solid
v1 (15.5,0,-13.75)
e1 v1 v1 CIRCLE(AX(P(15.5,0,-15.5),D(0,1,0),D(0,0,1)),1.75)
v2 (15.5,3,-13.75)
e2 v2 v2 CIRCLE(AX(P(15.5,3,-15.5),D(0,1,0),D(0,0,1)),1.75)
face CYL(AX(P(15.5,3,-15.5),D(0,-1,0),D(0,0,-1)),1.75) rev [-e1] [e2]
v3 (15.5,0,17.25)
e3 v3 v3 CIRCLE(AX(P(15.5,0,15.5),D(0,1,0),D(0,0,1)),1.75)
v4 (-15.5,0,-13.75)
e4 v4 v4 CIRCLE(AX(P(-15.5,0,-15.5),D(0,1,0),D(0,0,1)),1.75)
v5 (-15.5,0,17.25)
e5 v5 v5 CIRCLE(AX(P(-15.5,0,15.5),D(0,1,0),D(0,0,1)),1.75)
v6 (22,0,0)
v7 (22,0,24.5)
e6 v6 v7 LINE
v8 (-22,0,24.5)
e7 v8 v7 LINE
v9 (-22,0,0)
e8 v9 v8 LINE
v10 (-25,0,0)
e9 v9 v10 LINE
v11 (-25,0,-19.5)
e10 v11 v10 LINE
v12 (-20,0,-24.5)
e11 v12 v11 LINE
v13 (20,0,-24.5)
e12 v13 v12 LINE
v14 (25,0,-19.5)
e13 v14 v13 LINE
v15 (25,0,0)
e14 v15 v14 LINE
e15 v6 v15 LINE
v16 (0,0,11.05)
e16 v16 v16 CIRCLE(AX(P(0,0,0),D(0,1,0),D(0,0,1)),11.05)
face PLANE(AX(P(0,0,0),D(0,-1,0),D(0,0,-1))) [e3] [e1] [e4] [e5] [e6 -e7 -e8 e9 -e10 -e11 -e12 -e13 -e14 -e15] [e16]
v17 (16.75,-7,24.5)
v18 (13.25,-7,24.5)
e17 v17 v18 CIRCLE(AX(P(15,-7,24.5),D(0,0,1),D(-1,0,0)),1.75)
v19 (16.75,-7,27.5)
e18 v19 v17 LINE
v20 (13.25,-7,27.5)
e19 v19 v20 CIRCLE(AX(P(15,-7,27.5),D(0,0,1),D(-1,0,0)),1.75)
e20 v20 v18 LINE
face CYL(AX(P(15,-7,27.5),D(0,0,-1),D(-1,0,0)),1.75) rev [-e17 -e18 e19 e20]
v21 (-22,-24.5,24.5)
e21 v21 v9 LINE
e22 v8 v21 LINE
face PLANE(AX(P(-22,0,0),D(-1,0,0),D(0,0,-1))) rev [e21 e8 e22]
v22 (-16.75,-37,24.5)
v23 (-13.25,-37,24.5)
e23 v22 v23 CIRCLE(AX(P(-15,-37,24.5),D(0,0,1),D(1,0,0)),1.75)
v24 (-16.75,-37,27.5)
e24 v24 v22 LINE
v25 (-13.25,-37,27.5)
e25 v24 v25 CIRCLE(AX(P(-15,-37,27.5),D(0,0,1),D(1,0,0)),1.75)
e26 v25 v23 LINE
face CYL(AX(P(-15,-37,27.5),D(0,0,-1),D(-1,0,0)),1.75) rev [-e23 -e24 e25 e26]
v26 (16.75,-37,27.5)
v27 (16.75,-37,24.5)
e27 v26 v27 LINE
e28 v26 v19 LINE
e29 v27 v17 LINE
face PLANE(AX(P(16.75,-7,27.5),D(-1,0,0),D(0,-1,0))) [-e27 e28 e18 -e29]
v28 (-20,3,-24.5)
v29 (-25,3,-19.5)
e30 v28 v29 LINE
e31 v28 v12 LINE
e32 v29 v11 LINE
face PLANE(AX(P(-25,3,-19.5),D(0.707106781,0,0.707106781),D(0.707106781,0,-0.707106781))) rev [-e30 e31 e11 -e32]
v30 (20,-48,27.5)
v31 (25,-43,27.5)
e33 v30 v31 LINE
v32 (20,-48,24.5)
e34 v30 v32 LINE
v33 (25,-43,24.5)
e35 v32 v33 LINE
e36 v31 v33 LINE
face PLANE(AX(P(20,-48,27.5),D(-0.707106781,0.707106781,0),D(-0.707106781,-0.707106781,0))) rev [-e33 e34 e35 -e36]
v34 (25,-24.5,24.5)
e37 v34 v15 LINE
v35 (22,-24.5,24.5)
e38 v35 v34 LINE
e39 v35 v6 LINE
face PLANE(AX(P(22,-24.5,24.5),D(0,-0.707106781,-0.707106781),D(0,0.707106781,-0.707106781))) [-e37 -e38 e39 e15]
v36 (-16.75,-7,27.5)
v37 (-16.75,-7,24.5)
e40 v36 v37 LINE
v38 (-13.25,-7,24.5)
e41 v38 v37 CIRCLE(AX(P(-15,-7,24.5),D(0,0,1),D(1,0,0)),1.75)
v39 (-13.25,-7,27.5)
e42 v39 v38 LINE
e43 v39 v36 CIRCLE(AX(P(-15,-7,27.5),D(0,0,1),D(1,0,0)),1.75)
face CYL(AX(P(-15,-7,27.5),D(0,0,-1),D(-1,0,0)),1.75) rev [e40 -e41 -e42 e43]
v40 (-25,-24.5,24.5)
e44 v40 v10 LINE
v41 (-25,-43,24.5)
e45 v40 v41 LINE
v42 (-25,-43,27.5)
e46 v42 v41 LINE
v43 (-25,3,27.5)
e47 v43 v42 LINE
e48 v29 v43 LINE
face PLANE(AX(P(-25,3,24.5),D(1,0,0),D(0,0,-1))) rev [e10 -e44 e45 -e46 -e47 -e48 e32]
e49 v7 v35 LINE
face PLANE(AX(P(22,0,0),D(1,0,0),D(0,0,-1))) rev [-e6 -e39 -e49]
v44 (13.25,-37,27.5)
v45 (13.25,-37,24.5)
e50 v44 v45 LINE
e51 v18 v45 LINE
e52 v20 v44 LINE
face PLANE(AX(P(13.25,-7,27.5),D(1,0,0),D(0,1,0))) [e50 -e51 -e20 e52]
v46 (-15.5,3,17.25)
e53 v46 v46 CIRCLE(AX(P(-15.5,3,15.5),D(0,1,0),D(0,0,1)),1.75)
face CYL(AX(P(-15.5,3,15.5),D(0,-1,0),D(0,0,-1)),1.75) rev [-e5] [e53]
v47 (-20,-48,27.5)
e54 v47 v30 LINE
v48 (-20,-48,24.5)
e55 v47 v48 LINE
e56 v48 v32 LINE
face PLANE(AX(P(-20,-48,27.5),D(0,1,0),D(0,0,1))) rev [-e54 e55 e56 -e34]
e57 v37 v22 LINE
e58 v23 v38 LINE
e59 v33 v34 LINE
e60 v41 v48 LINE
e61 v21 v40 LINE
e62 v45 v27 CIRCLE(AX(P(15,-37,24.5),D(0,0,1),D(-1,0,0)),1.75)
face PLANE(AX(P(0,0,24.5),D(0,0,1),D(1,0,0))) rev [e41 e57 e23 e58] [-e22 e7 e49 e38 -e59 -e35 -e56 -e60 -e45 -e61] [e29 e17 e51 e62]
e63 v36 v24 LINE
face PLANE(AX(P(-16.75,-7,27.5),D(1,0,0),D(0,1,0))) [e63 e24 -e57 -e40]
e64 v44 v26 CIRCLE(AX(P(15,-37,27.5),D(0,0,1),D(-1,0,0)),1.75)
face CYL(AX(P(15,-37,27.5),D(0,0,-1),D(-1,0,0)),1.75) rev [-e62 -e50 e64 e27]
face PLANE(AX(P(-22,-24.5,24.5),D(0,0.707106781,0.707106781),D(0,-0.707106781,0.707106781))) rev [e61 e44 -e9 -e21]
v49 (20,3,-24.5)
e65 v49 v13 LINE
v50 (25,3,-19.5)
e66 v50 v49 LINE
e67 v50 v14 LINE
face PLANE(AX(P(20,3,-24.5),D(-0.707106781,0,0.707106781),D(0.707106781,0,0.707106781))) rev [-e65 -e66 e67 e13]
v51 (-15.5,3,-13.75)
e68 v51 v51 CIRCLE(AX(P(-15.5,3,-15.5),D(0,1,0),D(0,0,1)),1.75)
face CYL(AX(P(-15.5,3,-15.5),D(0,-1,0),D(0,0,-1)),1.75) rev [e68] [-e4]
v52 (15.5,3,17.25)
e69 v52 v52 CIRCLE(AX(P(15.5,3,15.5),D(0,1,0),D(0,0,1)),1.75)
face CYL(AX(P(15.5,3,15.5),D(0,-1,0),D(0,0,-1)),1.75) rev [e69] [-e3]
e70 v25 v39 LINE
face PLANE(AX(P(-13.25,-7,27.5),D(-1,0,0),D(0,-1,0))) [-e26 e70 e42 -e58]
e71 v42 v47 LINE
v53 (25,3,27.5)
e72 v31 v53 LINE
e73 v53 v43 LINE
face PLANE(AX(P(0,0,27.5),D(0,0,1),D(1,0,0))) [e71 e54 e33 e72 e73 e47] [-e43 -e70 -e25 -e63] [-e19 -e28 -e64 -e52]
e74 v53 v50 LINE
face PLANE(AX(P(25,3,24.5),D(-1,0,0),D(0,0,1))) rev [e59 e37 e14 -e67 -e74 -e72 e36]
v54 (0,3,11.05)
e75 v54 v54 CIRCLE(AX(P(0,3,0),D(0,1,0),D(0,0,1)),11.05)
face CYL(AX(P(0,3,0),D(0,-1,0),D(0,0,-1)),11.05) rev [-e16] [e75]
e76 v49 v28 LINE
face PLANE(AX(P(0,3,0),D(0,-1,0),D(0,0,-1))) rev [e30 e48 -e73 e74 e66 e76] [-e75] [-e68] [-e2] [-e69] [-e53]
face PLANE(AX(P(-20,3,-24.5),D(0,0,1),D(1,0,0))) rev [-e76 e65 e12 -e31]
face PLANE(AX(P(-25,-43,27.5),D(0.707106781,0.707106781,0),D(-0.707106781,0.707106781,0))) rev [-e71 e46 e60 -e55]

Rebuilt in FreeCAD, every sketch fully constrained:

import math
import FreeCAD as App
import Part
import Sketcher
from FreeCAD import Vector
Q = App.Units.Quantity


def add_polygon(sketch, points):
    """Adds a closed chain of lines whose ends are joined by coincident constraints."""
    first, n = sketch.GeometryCount, len(points)
    for a, b in zip(points, points[1:] + points[:1]):
        sketch.addGeometry(Part.LineSegment(App.Vector(*a, 0), App.Vector(*b, 0)), False)
    for i in range(n):
        sketch.addConstraint(Sketcher.Constraint("Coincident", first + i, 2, first + (i + 1) % n, 1))

doc = App.newDocument("Part")
body = doc.addObject("PartDesign::Body", "Body")

sketch1 = doc.addObject("Sketcher::SketchObject", "Sketch")
body.addObject(sketch1)
sketch1.AttachmentSupport = (doc.XZ_Plane, [""])
sketch1.MapMode = "FlatFace"
add_polygon(sketch1, [(-20, -24.5), (-25, -19.5), (-25, 24.5), (25, 24.5), (25, -19.5), (20, -24.5)])
sketch1.addGeometry(Part.Circle(Vector(15.5, 15.5, 0), Vector(0, 0, 1), 1.8), False)
sketch1.addGeometry(Part.Circle(Vector(-15.5, 15.5, 0), Vector(0, 0, 1), 1.8), False)
sketch1.addGeometry(Part.Circle(Vector(15.5, -15.5, 0), Vector(0, 0, 1), 1.8), False)
sketch1.addGeometry(Part.Circle(Vector(0, 0, 0), Vector(0, 0, 1), 11.1), False)
sketch1.addGeometry(Part.Circle(Vector(-15.5, -15.5, 0), Vector(0, 0, 1), 1.8), False)
sketch1.addConstraint(Sketcher.Constraint("Vertical", 1))
sketch1.addConstraint(Sketcher.Constraint("Horizontal", 2))
sketch1.addConstraint(Sketcher.Constraint("Vertical", 3))
sketch1.addConstraint(Sketcher.Constraint("Horizontal", 5))
sketch1.addConstraint(Sketcher.Constraint("Coincident", 9, 3, -1, 1))
sketch1.addConstraint(Sketcher.Constraint("Equal", 6, 7))
sketch1.addConstraint(Sketcher.Constraint("Equal", 7, 8))
sketch1.addConstraint(Sketcher.Constraint("Equal", 8, 10))
sketch1.addConstraint(Sketcher.Constraint("Symmetric", 7, 3, 8, 3, -1, 1))
sketch1.addConstraint(Sketcher.Constraint("Symmetric", 6, 3, 10, 3, -1, 1))
sketch1.addConstraint(Sketcher.Constraint("Symmetric", 6, 3, 7, 3, -2))
sketch1.addConstraint(Sketcher.Constraint("Symmetric", 0, 2, 3, 2, -2))
sketch1.addConstraint(Sketcher.Constraint("Perpendicular", 0, 4))
sketch1.addConstraint(Sketcher.Constraint("Equal", 0, 4))
sketch1.addConstraint(Sketcher.Constraint("Diameter", 6, Q("3.5 mm")))
sketch1.addConstraint(Sketcher.Constraint("Diameter", 9, Q("22.1 mm")))
sketch1.addConstraint(Sketcher.Constraint("DistanceX", 2, 1, 2, 2, Q("50 mm")))
sketch1.addConstraint(Sketcher.Constraint("DistanceX", 5, 2, 5, 1, Q("40 mm")))
sketch1.addConstraint(Sketcher.Constraint("DistanceY", 1, 1, 1, 2, Q("44 mm")))
sketch1.addConstraint(Sketcher.Constraint("DistanceX", 7, 3, 6, 3, Q("31 mm")))
sketch1.addConstraint(Sketcher.Constraint("DistanceY", 8, 3, 6, 3, Q("31 mm")))
sketch1.addConstraint(Sketcher.Constraint("DistanceY", 0, 2, 10, 3, Q("4 mm")))
pad1 = doc.addObject("PartDesign::Pad", "Pad")
body.addObject(pad1)
pad1.Profile = sketch1
pad1.Length = 3
pad1.Reversed = True

sketch2 = doc.addObject("Sketcher::SketchObject", "Sketch001")
body.addObject(sketch2)
sketch2.AttachmentSupport = (doc.XY_Plane, [""])
sketch2.MapMode = "FlatFace"
sketch2.AttachmentOffset = App.Placement(Vector(0, 0, 24.5), App.Rotation())
add_polygon(sketch2, [(25, 3), (-25, 3), (-25, -43), (-20, -48), (20, -48), (25, -43)])
sketch2.addGeometry(Part.ArcOfCircle(Part.Circle(Vector(15, -7, 0), Vector(0, 0, 1), 1.8), math.radians(0), math.radians(180)), False)
sketch2.addGeometry(Part.LineSegment(Vector(16.8, -7, 0), Vector(16.8, -37, 0)), False)
sketch2.addGeometry(Part.ArcOfCircle(Part.Circle(Vector(15, -37, 0), Vector(0, 0, 1), 1.8), math.radians(180), math.radians(360)), False)
sketch2.addGeometry(Part.LineSegment(Vector(13.2, -37, 0), Vector(13.2, -7, 0)), False)
sketch2.addGeometry(Part.LineSegment(Vector(-13.2, -7, 0), Vector(-13.2, -37, 0)), False)
sketch2.addGeometry(Part.ArcOfCircle(Part.Circle(Vector(-15, -37, 0), Vector(0, 0, 1), 1.8), math.radians(180), math.radians(360)), False)
sketch2.addGeometry(Part.LineSegment(Vector(-16.8, -37, 0), Vector(-16.8, -7, 0)), False)
sketch2.addGeometry(Part.ArcOfCircle(Part.Circle(Vector(-15, -7, 0), Vector(0, 0, 1), 1.8), math.radians(0), math.radians(180)), False)
sketch2.addConstraint(Sketcher.Constraint("Tangent", 6, 1, 7, 1))
sketch2.addConstraint(Sketcher.Constraint("Tangent", 7, 2, 8, 2))
sketch2.addConstraint(Sketcher.Constraint("Tangent", 8, 1, 9, 1))
sketch2.addConstraint(Sketcher.Constraint("Tangent", 9, 2, 6, 2))
sketch2.addConstraint(Sketcher.Constraint("Tangent", 10, 2, 11, 2))
sketch2.addConstraint(Sketcher.Constraint("Tangent", 11, 1, 12, 1))
sketch2.addConstraint(Sketcher.Constraint("Tangent", 12, 2, 13, 2))
sketch2.addConstraint(Sketcher.Constraint("Tangent", 13, 1, 10, 1))
sketch2.addConstraint(Sketcher.Constraint("Horizontal", 0))
sketch2.addConstraint(Sketcher.Constraint("Vertical", 1))
sketch2.addConstraint(Sketcher.Constraint("Horizontal", 3))
sketch2.addConstraint(Sketcher.Constraint("Vertical", 5))
sketch2.addConstraint(Sketcher.Constraint("Vertical", 7))
sketch2.addConstraint(Sketcher.Constraint("Vertical", 9))
sketch2.addConstraint(Sketcher.Constraint("Vertical", 10))
sketch2.addConstraint(Sketcher.Constraint("Vertical", 12))
sketch2.addConstraint(Sketcher.Constraint("Equal", 8, 11))
sketch2.addConstraint(Sketcher.Constraint("Symmetric", 8, 3, 11, 3, -2))
sketch2.addConstraint(Sketcher.Constraint("Symmetric", 1, 2, 4, 2, -2))
sketch2.addConstraint(Sketcher.Constraint("Perpendicular", 2, 4))
sketch2.addConstraint(Sketcher.Constraint("Horizontal", 6, 3, 13, 3))
sketch2.addConstraint(Sketcher.Constraint("Equal", 2, 4))
sketch2.addConstraint(Sketcher.Constraint("DistanceX", 0, 2, 0, 1, Q("50 mm")))
sketch2.addConstraint(Sketcher.Constraint("DistanceX", 3, 1, 3, 2, Q("40 mm")))
sketch2.addConstraint(Sketcher.Constraint("DistanceY", 1, 2, 1, 1, Q("46 mm")))
sketch2.addConstraint(Sketcher.Constraint("DistanceY", 7, 2, 7, 1, Q("30 mm")))
sketch2.addConstraint(Sketcher.Constraint("Radius", 6, Q("1.75 mm")))
sketch2.addConstraint(Sketcher.Constraint("DistanceX", -1, 1, 6, 3, Q("15 mm")))
sketch2.addConstraint(Sketcher.Constraint("DistanceY", 6, 3, -1, 1, Q("7 mm")))
sketch2.addConstraint(Sketcher.Constraint("DistanceY", -1, 1, 0, 2, Q("3 mm")))
pad2 = doc.addObject("PartDesign::Pad", "Pad001")
body.addObject(pad2)
pad2.Profile = sketch2
pad2.Length = 3

sketch3 = doc.addObject("Sketcher::SketchObject", "Sketch002")
body.addObject(sketch3)
sketch3.AttachmentSupport = (doc.YZ_Plane, [""])
sketch3.MapMode = "FlatFace"
sketch3.AttachmentOffset = App.Placement(Vector(0, 0, 25), App.Rotation())
add_polygon(sketch3, [(0, 0), (0, 24), (-24, 24)])
sketch3.addConstraint(Sketcher.Constraint("Vertical", 0))
sketch3.addConstraint(Sketcher.Constraint("Horizontal", 1))
sketch3.addConstraint(Sketcher.Constraint("Coincident", 2, 2, -1, 1))
sketch3.addConstraint(Sketcher.Constraint("Equal", 1, 0))
sketch3.addConstraint(Sketcher.Constraint("DistanceX", 1, 2, 1, 1, Q("24.5 mm")))
pad3 = doc.addObject("PartDesign::Pad", "Pad002")
body.addObject(pad3)
pad3.Profile = sketch3
pad3.Length = 3
pad3.Reversed = True
doc.recompute()

mirrored = doc.addObject("PartDesign::Mirrored", "Mirrored")
body.addObject(mirrored)
mirrored.Originals = [pad3]
mirrored.MirrorPlane = (doc.YZ_Plane, [""])
body.Tip = mirrored

doc.recompute()
